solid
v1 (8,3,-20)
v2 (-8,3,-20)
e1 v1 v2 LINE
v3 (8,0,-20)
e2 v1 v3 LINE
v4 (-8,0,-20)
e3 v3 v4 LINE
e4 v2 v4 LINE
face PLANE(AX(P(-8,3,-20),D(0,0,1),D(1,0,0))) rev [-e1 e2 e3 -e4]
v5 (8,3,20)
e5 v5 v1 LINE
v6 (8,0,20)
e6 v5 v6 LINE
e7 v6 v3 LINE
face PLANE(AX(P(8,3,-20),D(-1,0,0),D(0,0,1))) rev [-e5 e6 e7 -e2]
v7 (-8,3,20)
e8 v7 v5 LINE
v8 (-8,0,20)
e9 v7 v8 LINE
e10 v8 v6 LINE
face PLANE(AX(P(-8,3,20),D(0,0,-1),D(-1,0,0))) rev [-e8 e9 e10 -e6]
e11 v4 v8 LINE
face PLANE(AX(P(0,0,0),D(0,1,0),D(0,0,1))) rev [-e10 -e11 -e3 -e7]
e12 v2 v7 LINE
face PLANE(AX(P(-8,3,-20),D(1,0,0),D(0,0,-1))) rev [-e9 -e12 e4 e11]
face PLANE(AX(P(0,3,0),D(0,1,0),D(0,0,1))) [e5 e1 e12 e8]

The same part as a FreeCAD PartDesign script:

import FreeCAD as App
import Part
import Sketcher
from FreeCAD import Vector
Q = App.Units.Quantity


def add_polygon(sketch, points):
    """Adds a closed chain of lines whose ends are joined by coincident constraints."""
    first, n = sketch.GeometryCount, len(points)
    for a, b in zip(points, points[1:] + points[:1]):
        sketch.addGeometry(Part.LineSegment(App.Vector(*a, 0), App.Vector(*b, 0)), False)
    for i in range(n):
        sketch.addConstraint(Sketcher.Constraint("Coincident", first + i, 2, first + (i + 1) % n, 1))

doc = App.newDocument("Part")
params = doc.addObject("Spreadsheet::Sheet", "Params")
for row, (alias, value) in enumerate([
    ("sketch1_width", "16 mm"),
    ("sketch1_height", "40 mm"),
    ("pad1_length", "3 mm"),
], start=1):
    params.set(f"A{row}", alias)
    params.set(f"B{row}", "=" + value)
    params.setAlias(f"B{row}", alias)

body = doc.addObject("PartDesign::Body", "Body")

sketch1 = body.newObject("Sketcher::SketchObject", "Sketch")
sketch1.AttachmentSupport = (doc.getObject("XZ_Plane"), [""])
sketch1.MapMode = "FlatFace"
add_polygon(sketch1, [(-8, -20), (-8, 20), (8, 20), (8, -20)])
sketch1.addConstraint(Sketcher.Constraint("Vertical", 0))
sketch1.addConstraint(Sketcher.Constraint("Horizontal", 1))
sketch1.addConstraint(Sketcher.Constraint("Vertical", 2))
sketch1.addConstraint(Sketcher.Constraint("Horizontal", 3))
sketch1.addConstraint(Sketcher.Constraint("Symmetric", 0, 2, 2, 2, -1, 1))
sketch1.addConstraint(Sketcher.Constraint("DistanceX", 1, 1, 1, 2, Q("16 mm")))
sketch1.addConstraint(Sketcher.Constraint("DistanceY", 0, 1, 0, 2, Q("40 mm")))
sketch1.setExpression("Constraints[9]", "Params.sketch1_width")
sketch1.setExpression("Constraints[10]", "Params.sketch1_height")
pad1 = body.newObject("PartDesign::Pad", "Pad")
pad1.Profile = sketch1
pad1.setExpression("Length", "Params.pad1_length")
pad1.Reversed = True

doc.recompute()
